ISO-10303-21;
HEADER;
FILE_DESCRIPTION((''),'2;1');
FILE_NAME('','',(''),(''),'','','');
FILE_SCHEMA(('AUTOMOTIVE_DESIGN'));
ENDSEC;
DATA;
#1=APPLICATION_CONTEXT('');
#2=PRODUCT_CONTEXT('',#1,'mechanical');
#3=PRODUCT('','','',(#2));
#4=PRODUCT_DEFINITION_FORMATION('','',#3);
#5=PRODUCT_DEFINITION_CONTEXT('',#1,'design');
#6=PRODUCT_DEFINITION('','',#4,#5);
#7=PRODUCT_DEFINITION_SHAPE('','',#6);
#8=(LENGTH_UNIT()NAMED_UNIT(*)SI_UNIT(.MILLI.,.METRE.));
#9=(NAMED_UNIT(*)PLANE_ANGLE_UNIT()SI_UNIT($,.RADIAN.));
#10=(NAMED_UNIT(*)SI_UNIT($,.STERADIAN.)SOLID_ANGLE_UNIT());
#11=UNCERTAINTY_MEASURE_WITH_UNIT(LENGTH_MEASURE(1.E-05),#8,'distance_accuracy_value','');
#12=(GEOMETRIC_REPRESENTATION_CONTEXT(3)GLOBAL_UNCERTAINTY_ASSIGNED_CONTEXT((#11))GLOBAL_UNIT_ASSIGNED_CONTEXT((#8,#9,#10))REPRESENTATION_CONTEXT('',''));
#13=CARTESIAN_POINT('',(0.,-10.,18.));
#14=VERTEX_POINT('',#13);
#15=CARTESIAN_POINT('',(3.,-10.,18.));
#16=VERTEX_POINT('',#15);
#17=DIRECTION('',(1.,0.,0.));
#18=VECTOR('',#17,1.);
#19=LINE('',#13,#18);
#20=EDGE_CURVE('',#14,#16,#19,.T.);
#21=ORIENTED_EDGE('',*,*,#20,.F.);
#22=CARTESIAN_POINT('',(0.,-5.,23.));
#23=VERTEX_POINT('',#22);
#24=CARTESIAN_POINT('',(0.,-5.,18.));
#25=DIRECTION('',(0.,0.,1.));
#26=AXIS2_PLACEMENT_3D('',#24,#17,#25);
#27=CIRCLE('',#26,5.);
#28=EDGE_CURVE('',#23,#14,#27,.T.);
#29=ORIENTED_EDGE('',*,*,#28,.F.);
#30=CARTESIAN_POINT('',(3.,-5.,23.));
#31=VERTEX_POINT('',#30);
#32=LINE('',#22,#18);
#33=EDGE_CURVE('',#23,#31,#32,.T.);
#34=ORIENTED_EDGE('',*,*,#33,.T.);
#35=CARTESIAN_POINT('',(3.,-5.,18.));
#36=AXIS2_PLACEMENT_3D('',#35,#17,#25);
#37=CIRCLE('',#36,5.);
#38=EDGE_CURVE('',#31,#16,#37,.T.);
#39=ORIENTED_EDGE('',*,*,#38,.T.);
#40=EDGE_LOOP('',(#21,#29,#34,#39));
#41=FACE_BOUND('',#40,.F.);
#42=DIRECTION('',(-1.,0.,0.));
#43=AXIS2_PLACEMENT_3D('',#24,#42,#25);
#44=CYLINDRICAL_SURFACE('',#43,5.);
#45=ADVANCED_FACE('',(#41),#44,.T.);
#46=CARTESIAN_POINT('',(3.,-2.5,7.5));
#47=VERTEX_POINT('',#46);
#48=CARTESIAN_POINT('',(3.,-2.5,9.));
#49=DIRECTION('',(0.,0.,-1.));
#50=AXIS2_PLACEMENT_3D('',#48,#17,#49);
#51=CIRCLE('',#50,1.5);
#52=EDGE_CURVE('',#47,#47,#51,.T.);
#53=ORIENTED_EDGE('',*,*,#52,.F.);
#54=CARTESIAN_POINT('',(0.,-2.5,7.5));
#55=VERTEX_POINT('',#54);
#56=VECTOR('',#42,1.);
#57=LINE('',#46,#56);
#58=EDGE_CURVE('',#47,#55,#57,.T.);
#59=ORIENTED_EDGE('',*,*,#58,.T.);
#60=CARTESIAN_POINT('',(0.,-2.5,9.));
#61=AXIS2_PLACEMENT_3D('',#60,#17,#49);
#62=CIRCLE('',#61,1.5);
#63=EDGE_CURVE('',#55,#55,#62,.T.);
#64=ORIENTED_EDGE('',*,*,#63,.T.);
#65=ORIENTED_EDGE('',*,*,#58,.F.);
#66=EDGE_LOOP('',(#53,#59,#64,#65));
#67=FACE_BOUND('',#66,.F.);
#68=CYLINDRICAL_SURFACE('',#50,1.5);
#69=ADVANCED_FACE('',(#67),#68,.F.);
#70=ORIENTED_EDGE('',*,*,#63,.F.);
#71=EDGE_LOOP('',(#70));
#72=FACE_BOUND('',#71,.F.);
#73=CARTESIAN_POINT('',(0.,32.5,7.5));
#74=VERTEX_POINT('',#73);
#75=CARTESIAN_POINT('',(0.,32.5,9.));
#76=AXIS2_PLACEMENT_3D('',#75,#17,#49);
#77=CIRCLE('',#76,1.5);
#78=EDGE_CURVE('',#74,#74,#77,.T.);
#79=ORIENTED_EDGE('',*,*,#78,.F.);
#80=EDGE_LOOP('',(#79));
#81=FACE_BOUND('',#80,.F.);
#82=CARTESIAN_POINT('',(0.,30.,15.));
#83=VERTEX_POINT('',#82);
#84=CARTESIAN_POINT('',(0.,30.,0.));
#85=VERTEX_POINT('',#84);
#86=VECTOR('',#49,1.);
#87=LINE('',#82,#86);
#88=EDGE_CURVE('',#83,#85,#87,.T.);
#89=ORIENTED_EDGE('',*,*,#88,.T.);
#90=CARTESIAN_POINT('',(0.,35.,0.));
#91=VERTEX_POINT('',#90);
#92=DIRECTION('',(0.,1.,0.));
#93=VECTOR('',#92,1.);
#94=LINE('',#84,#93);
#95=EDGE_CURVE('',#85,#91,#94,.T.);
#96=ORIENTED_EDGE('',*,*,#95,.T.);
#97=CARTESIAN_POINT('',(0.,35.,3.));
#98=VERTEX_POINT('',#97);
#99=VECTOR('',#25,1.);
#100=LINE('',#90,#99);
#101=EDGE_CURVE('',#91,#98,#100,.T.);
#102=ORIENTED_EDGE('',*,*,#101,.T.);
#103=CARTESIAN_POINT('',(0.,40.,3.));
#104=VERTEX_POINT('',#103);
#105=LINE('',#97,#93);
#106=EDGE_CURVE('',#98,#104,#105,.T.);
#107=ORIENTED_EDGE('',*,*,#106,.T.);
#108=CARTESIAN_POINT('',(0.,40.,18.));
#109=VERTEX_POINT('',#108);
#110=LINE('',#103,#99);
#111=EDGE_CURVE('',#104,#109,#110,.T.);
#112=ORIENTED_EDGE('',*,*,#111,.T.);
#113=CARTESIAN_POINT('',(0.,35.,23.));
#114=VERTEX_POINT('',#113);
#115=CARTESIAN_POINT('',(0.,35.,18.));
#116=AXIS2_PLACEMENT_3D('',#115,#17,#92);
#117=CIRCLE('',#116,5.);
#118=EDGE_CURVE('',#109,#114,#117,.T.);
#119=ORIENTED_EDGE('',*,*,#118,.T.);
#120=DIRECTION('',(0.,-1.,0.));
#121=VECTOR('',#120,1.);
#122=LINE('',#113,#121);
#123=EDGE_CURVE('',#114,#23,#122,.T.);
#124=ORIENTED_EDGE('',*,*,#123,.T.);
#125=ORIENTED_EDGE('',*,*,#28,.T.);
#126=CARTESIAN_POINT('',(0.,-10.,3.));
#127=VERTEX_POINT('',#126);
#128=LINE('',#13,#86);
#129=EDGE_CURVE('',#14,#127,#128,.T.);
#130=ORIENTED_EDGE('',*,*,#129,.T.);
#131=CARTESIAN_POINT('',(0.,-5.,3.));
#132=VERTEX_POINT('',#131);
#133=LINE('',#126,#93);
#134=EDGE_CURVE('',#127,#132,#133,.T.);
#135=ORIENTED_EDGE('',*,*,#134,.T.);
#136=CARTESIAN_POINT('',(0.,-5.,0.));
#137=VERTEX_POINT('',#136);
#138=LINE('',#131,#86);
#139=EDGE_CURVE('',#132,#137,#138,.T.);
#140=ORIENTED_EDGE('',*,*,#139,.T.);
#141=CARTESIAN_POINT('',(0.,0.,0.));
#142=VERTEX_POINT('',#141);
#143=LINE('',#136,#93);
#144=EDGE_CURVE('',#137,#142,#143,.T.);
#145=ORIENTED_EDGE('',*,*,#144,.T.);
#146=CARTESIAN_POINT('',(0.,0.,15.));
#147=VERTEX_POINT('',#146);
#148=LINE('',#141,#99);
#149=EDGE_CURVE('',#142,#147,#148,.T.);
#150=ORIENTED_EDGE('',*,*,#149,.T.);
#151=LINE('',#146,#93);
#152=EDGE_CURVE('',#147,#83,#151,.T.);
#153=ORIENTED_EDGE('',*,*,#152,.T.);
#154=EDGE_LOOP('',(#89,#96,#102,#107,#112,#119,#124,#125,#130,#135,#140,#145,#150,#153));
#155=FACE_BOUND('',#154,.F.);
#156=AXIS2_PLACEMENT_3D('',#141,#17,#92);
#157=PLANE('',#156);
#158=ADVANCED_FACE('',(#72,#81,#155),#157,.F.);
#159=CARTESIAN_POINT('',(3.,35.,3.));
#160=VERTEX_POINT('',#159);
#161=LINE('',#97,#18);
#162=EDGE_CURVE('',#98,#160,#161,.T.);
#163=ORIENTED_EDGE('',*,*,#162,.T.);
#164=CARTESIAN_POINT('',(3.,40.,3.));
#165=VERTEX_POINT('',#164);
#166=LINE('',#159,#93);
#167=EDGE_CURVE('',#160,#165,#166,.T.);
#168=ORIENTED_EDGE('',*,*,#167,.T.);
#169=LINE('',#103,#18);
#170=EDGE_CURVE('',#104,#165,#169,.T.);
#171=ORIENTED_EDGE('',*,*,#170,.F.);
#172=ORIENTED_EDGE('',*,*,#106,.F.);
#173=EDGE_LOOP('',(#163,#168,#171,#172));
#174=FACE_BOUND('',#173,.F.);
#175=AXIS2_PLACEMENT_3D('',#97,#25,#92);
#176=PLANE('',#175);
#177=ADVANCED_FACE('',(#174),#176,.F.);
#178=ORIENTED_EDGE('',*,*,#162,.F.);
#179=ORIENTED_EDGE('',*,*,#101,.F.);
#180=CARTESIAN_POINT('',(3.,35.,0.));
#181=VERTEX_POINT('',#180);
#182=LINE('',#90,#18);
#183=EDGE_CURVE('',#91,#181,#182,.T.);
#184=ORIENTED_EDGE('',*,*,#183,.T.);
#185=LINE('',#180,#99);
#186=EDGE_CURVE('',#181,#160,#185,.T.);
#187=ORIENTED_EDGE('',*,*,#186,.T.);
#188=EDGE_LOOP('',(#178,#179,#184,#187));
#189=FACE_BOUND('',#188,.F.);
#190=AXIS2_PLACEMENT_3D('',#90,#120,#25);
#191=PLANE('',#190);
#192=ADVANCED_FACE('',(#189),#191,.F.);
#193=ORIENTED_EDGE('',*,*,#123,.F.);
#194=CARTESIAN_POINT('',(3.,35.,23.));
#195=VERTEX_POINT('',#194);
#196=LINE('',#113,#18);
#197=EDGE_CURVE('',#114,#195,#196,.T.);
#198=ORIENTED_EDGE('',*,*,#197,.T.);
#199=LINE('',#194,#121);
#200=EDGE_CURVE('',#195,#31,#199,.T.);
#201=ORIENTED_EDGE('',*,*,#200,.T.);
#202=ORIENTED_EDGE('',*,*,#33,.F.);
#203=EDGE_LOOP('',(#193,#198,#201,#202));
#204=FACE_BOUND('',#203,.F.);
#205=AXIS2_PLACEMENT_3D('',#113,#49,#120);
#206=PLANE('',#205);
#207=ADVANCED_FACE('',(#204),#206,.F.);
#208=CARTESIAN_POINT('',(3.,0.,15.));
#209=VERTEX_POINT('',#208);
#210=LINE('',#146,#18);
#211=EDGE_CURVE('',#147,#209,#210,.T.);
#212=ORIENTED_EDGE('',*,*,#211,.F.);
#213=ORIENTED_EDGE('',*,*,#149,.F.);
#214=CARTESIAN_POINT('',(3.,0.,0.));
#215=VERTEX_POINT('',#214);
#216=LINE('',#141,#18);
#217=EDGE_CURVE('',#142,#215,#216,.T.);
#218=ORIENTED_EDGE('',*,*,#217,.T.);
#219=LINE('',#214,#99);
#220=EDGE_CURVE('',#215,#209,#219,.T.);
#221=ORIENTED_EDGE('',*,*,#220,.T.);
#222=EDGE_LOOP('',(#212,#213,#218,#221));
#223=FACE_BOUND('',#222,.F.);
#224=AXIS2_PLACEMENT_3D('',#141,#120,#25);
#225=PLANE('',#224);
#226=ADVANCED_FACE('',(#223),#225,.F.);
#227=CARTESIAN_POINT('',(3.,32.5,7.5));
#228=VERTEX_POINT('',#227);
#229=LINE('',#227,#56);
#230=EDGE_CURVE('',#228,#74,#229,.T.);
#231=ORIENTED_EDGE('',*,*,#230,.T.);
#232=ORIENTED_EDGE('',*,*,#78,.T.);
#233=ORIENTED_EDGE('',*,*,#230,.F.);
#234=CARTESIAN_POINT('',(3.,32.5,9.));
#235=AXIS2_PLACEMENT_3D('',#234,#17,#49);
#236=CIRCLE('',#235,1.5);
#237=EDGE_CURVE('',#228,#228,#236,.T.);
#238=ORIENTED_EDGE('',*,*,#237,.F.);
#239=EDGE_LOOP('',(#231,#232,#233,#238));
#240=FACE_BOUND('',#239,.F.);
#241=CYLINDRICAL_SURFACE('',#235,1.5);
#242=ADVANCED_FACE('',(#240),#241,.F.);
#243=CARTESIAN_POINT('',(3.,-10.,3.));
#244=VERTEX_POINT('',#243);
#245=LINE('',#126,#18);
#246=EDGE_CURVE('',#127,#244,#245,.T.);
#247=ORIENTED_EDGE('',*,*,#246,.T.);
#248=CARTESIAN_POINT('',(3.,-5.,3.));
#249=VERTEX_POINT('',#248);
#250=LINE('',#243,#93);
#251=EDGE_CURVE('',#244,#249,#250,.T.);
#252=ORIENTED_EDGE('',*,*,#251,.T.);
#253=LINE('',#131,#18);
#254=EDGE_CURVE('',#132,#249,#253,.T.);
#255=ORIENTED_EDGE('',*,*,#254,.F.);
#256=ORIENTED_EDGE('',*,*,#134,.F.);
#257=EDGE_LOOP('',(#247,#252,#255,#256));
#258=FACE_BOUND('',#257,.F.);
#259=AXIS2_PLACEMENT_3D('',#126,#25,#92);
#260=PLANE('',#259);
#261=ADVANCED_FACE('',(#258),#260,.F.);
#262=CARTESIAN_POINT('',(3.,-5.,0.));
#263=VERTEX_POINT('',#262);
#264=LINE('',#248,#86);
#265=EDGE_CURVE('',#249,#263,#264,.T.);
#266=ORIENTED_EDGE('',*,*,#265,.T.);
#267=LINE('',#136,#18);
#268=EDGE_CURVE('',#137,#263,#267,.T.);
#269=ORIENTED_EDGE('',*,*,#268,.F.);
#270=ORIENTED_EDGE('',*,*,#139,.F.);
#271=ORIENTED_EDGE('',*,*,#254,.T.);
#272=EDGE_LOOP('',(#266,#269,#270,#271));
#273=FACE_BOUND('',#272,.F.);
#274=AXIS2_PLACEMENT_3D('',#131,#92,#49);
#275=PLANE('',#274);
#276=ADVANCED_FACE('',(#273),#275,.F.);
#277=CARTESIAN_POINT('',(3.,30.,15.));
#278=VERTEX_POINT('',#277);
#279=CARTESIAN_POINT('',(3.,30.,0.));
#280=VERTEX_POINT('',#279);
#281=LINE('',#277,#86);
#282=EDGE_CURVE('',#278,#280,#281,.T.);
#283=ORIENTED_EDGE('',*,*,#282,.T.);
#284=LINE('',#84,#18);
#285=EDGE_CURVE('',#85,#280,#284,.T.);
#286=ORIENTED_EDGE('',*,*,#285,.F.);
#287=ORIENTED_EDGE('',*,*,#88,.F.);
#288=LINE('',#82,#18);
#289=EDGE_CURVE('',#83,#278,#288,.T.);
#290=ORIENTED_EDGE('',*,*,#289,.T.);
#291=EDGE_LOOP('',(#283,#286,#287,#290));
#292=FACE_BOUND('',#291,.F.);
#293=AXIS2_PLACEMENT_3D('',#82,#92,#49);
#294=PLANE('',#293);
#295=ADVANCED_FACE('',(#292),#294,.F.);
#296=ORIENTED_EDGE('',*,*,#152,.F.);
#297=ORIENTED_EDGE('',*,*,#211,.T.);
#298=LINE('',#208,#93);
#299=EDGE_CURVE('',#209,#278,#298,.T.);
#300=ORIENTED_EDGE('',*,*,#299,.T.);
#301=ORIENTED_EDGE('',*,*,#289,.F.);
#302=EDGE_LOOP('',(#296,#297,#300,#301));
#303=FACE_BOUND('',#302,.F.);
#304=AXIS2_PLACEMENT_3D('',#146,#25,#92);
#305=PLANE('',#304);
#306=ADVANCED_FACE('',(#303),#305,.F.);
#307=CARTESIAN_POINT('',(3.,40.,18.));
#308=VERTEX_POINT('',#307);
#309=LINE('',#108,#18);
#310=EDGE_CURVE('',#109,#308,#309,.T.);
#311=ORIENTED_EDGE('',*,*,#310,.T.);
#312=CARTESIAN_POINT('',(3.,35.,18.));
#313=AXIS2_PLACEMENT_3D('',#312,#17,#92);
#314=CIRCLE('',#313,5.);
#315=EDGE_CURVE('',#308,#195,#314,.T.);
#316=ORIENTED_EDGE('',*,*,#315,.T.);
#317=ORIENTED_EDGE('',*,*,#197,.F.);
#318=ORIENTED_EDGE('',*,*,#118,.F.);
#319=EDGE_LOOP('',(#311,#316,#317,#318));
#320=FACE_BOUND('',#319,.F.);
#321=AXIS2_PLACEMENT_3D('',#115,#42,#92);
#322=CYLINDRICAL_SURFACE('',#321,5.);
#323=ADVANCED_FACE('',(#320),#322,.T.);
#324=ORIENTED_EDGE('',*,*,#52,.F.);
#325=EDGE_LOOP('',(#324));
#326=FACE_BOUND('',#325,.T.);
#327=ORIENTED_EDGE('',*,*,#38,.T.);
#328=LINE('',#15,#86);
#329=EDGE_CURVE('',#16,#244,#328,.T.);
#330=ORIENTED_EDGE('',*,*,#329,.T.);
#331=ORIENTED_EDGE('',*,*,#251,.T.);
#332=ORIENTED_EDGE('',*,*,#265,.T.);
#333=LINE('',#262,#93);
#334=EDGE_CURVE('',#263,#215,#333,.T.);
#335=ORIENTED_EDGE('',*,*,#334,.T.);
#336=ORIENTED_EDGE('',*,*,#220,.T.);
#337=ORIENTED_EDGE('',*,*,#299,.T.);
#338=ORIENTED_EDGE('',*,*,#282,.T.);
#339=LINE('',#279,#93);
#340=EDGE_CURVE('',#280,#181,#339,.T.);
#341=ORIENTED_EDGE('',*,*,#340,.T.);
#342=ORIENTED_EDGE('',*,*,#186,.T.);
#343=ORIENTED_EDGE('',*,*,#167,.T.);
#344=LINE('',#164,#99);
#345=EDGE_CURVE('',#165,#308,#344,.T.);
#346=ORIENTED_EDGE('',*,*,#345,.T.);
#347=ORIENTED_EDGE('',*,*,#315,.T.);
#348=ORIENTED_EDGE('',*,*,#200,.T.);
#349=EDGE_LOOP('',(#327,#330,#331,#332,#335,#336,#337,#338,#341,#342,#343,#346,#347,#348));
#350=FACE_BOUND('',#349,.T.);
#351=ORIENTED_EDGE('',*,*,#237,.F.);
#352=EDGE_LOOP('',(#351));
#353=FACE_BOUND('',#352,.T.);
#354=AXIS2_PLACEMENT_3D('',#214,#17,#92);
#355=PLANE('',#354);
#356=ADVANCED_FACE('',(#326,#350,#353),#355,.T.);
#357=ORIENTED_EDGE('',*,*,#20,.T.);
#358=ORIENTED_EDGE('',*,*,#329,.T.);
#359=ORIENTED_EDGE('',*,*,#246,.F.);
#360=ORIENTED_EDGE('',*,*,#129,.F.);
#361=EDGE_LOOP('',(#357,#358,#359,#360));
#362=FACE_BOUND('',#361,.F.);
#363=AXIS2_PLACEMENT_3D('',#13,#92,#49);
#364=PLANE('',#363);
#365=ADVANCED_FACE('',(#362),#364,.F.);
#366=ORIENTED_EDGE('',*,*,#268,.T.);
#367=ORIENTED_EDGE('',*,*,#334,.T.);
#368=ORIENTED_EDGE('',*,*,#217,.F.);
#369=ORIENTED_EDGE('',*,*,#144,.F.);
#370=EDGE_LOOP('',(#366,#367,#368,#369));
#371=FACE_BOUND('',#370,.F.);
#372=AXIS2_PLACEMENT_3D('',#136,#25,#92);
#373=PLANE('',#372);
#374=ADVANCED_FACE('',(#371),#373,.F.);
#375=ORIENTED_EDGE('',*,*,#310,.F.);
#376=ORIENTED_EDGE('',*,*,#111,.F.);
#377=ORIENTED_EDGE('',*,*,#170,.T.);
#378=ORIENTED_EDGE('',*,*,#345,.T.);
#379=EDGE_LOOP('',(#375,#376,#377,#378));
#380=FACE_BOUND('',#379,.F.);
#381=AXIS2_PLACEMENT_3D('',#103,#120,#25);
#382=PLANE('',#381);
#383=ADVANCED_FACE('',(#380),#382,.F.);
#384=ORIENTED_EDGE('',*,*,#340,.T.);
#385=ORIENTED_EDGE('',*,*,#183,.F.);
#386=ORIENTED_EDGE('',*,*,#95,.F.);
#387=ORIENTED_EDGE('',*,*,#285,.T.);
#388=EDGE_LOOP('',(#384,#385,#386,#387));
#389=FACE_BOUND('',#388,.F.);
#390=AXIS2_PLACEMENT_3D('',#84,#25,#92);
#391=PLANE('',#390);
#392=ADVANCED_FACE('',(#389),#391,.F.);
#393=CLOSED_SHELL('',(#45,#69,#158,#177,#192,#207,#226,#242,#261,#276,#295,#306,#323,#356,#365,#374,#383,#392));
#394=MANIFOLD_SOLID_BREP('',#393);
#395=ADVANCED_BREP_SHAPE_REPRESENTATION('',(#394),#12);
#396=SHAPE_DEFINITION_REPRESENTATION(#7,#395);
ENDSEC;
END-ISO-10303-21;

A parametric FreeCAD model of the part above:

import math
import FreeCAD as App
import Part
import Sketcher

doc = App.newDocument("Part")
body = doc.addObject("PartDesign::Body", "Body")

# Sketch on YZ plane
sketch1 = body.newObject("Sketcher::SketchObject", "Sketch")
sketch1.AttachmentSupport = (doc.getObject("YZ_Plane"), [""])
sketch1.MapMode = "FlatFace"
sketch1.addGeometry([
    Part.LineSegment(App.Vector(30, 15, 0), App.Vector(30, 0, 0)),  # 0
    Part.LineSegment(App.Vector(30, 0, 0), App.Vector(35, 0, 0)),  # 1
    Part.LineSegment(App.Vector(35, 0, 0), App.Vector(35, 3, 0)),  # 2
    Part.LineSegment(App.Vector(35, 3, 0), App.Vector(40, 3, 0)),  # 3
    Part.LineSegment(App.Vector(40, 3, 0), App.Vector(40, 18, 0)),  # 4
    Part.ArcOfCircle(Part.Circle(App.Vector(35, 18, 0), App.Vector(0, 0, 1), 5), math.radians(0), math.radians(90)),  # 5
    Part.LineSegment(App.Vector(35, 23, 0), App.Vector(-5, 23, 0)),  # 6
    Part.ArcOfCircle(Part.Circle(App.Vector(-5, 18, 0), App.Vector(0, 0, 1), 5), math.radians(90), math.radians(180)),  # 7
    Part.LineSegment(App.Vector(-10, 18, 0), App.Vector(-10, 3, 0)),  # 8
    Part.LineSegment(App.Vector(-10, 3, 0), App.Vector(-5, 3, 0)),  # 9
    Part.LineSegment(App.Vector(-5, 3, 0), App.Vector(-5, 0, 0)),  # 10
    Part.LineSegment(App.Vector(-5, 0, 0), App.Vector(0, 0, 0)),  # 11
    Part.LineSegment(App.Vector(0, 0, 0), App.Vector(0, 15, 0)),  # 12
    Part.LineSegment(App.Vector(0, 15, 0), App.Vector(30, 15, 0)),  # 13
], False)
sketch1.addConstraint([
    Sketcher.Constraint("Coincident", 0, 2, 1, 1),
    Sketcher.Constraint("Coincident", 1, 2, 2, 1),
    Sketcher.Constraint("Coincident", 2, 2, 3, 1),
    Sketcher.Constraint("Coincident", 3, 2, 4, 1),
    Sketcher.Constraint("Tangent", 4, 2, 5, 1),
    Sketcher.Constraint("Tangent", 5, 2, 6, 1),
    Sketcher.Constraint("Tangent", 6, 2, 7, 1),
    Sketcher.Constraint("Tangent", 7, 2, 8, 1),
    Sketcher.Constraint("Coincident", 8, 2, 9, 1),
    Sketcher.Constraint("Coincident", 9, 2, 10, 1),
    Sketcher.Constraint("Coincident", 10, 2, 11, 1),
    Sketcher.Constraint("Coincident", 11, 2, 12, 1),
    Sketcher.Constraint("Coincident", 12, 2, 13, 1),
    Sketcher.Constraint("Coincident", 13, 2, 0, 1),
    Sketcher.Constraint("Vertical", 0),
    Sketcher.Constraint("Horizontal", 1),
    Sketcher.Constraint("Vertical", 2),
    Sketcher.Constraint("Horizontal", 3),
    Sketcher.Constraint("Vertical", 4),
    Sketcher.Constraint("Horizontal", 6),
    Sketcher.Constraint("Vertical", 8),
    Sketcher.Constraint("Horizontal", 9),
    Sketcher.Constraint("Vertical", 10),
    Sketcher.Constraint("Horizontal", 11),
    Sketcher.Constraint("Vertical", 12),
    Sketcher.Constraint("Horizontal", 13),
    Sketcher.Constraint("Coincident", 11, 2, -1, 1),
    Sketcher.Constraint("Equal", 5, 7),
    Sketcher.Constraint("PointOnObject", 0, 2, -1),
    Sketcher.Constraint("Horizontal", 3, 2, 8, 2),
    Sketcher.Constraint("Vertical", 5, 3, 1, 2),
    Sketcher.Constraint("Vertical", 6, 2, 9, 2),
    Sketcher.Constraint("Equal", 1, 3),
    Sketcher.Constraint("Equal", 9, 11),
    Sketcher.Constraint("Equal", 0, 4),
    Sketcher.Constraint("Radius", 5, 5.0),
    Sketcher.Constraint("DistanceX", 13, 1, 13, 2, 30.0),
    Sketcher.Constraint("DistanceY", 2, 1, 2, 2, 3.0),
    Sketcher.Constraint("DistanceY", 2, 2, 5, 2, 20.0),
])
pad1 = body.newObject("PartDesign::Pad", "Pad")
pad1.Profile = sketch1
pad1.Length = 3

# Sketch on YZ plane
sketch2 = body.newObject("Sketcher::SketchObject", "Sketch001")
sketch2.AttachmentSupport = (doc.getObject("YZ_Plane"), [""])
sketch2.MapMode = "FlatFace"
sketch2.AttachmentOffset = App.Placement(App.Vector(0, 0, 3), App.Rotation())
sketch2.addGeometry([
    Part.Circle(App.Vector(32.5, 9, 0), App.Vector(0, 0, 1), 1.5),
    Part.Circle(App.Vector(-2.5, 9, 0), App.Vector(0, 0, 1), 1.5),
], False)
sketch2.addConstraint([
    Sketcher.Constraint("Equal", 0, 1),
    Sketcher.Constraint("Horizontal", 0, 3, 1, 3),
    Sketcher.Constraint("Diameter", 0, 3.0),
    Sketcher.Constraint("DistanceX", 1, 3, -1, 1, 2.5),
    Sketcher.Constraint("DistanceY", -1, 1, 0, 3, 9.0),
    Sketcher.Constraint("DistanceX", 1, 3, 0, 3, 35.0),
])
pocket1 = body.newObject("PartDesign::Pocket", "Pocket")
pocket1.Profile = sketch2
pocket1.Length = 3

doc.recompute()
